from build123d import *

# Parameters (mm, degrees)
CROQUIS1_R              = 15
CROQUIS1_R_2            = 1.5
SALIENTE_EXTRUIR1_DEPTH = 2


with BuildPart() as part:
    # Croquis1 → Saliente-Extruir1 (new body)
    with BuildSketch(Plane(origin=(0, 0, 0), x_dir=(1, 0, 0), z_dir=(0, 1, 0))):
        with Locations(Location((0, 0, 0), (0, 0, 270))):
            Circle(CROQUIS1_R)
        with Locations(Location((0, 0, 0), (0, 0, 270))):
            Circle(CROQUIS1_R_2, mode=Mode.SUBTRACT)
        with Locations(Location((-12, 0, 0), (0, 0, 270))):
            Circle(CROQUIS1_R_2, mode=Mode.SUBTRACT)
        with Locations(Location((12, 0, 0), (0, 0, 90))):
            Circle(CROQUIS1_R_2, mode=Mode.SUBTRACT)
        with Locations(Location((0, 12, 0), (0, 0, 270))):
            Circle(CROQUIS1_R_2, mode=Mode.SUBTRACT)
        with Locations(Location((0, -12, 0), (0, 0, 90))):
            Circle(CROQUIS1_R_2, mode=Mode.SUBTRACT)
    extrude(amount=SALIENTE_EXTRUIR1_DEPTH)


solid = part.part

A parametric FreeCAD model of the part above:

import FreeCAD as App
import Part
import Sketcher
Q = App.Units.Quantity

doc = App.newDocument("Part")
body = doc.addObject("PartDesign::Body", "Body")

# Sketch on XZ plane
sketch1 = body.newObject("Sketcher::SketchObject", "Sketch")
sketch1.AttachmentSupport = (doc.getObject("XZ_Plane"), [""])
sketch1.MapMode = "FlatFace"
sketch1.addGeometry(Part.Circle(App.Vector(0, 0, 0), App.Vector(0, 0, 1), 15), False)
sketch1.addGeometry(Part.Circle(App.Vector(0, -12, 0), App.Vector(0, 0, 1), 1.5), False)
sketch1.addGeometry(Part.Circle(App.Vector(-12, 0, 0), App.Vector(0, 0, 1), 1.5), False)
sketch1.addGeometry(Part.Circle(App.Vector(12, 0, 0), App.Vector(0, 0, 1), 1.5), False)
sketch1.addGeometry(Part.Circle(App.Vector(0, 0, 0), App.Vector(0, 0, 1), 1.5), False)
sketch1.addGeometry(Part.Circle(App.Vector(0, 12, 0), App.Vector(0, 0, 1), 1.5), False)
sketch1.addConstraint(Sketcher.Constraint("Coincident", 0, 3, -1, 1))
sketch1.addConstraint(Sketcher.Constraint("Coincident", 4, 3, -1, 1))
sketch1.addConstraint(Sketcher.Constraint("Equal", 1, 2))
sketch1.addConstraint(Sketcher.Constraint("Equal", 2, 3))
sketch1.addConstraint(Sketcher.Constraint("Equal", 3, 4))
sketch1.addConstraint(Sketcher.Constraint("Equal", 4, 5))
sketch1.addConstraint(Sketcher.Constraint("Symmetric", 2, 3, 3, 3, -1, 1))
sketch1.addConstraint(Sketcher.Constraint("Symmetric", 1, 3, 5, 3, -1, 1))
sketch1.addConstraint(Sketcher.Constraint("PointOnObject", 1, 3, -2))
sketch1.addConstraint(Sketcher.Constraint("PointOnObject", 2, 3, -1))
sketch1.addConstraint(Sketcher.Constraint("Diameter", 0, Q("30 mm")))
sketch1.addConstraint(Sketcher.Constraint("Diameter", 1, Q("3 mm")))
sketch1.addConstraint(Sketcher.Constraint("DistanceY", 1, 3, -1, 1, Q("12 mm")))
sketch1.addConstraint(Sketcher.Constraint("DistanceX", 2, 3, -1, 1, Q("12 mm")))
pad1 = body.newObject("PartDesign::Pad", "Pad")
pad1.Profile = sketch1
pad1.Length = 2
pad1.Reversed = True

doc.recompute()
